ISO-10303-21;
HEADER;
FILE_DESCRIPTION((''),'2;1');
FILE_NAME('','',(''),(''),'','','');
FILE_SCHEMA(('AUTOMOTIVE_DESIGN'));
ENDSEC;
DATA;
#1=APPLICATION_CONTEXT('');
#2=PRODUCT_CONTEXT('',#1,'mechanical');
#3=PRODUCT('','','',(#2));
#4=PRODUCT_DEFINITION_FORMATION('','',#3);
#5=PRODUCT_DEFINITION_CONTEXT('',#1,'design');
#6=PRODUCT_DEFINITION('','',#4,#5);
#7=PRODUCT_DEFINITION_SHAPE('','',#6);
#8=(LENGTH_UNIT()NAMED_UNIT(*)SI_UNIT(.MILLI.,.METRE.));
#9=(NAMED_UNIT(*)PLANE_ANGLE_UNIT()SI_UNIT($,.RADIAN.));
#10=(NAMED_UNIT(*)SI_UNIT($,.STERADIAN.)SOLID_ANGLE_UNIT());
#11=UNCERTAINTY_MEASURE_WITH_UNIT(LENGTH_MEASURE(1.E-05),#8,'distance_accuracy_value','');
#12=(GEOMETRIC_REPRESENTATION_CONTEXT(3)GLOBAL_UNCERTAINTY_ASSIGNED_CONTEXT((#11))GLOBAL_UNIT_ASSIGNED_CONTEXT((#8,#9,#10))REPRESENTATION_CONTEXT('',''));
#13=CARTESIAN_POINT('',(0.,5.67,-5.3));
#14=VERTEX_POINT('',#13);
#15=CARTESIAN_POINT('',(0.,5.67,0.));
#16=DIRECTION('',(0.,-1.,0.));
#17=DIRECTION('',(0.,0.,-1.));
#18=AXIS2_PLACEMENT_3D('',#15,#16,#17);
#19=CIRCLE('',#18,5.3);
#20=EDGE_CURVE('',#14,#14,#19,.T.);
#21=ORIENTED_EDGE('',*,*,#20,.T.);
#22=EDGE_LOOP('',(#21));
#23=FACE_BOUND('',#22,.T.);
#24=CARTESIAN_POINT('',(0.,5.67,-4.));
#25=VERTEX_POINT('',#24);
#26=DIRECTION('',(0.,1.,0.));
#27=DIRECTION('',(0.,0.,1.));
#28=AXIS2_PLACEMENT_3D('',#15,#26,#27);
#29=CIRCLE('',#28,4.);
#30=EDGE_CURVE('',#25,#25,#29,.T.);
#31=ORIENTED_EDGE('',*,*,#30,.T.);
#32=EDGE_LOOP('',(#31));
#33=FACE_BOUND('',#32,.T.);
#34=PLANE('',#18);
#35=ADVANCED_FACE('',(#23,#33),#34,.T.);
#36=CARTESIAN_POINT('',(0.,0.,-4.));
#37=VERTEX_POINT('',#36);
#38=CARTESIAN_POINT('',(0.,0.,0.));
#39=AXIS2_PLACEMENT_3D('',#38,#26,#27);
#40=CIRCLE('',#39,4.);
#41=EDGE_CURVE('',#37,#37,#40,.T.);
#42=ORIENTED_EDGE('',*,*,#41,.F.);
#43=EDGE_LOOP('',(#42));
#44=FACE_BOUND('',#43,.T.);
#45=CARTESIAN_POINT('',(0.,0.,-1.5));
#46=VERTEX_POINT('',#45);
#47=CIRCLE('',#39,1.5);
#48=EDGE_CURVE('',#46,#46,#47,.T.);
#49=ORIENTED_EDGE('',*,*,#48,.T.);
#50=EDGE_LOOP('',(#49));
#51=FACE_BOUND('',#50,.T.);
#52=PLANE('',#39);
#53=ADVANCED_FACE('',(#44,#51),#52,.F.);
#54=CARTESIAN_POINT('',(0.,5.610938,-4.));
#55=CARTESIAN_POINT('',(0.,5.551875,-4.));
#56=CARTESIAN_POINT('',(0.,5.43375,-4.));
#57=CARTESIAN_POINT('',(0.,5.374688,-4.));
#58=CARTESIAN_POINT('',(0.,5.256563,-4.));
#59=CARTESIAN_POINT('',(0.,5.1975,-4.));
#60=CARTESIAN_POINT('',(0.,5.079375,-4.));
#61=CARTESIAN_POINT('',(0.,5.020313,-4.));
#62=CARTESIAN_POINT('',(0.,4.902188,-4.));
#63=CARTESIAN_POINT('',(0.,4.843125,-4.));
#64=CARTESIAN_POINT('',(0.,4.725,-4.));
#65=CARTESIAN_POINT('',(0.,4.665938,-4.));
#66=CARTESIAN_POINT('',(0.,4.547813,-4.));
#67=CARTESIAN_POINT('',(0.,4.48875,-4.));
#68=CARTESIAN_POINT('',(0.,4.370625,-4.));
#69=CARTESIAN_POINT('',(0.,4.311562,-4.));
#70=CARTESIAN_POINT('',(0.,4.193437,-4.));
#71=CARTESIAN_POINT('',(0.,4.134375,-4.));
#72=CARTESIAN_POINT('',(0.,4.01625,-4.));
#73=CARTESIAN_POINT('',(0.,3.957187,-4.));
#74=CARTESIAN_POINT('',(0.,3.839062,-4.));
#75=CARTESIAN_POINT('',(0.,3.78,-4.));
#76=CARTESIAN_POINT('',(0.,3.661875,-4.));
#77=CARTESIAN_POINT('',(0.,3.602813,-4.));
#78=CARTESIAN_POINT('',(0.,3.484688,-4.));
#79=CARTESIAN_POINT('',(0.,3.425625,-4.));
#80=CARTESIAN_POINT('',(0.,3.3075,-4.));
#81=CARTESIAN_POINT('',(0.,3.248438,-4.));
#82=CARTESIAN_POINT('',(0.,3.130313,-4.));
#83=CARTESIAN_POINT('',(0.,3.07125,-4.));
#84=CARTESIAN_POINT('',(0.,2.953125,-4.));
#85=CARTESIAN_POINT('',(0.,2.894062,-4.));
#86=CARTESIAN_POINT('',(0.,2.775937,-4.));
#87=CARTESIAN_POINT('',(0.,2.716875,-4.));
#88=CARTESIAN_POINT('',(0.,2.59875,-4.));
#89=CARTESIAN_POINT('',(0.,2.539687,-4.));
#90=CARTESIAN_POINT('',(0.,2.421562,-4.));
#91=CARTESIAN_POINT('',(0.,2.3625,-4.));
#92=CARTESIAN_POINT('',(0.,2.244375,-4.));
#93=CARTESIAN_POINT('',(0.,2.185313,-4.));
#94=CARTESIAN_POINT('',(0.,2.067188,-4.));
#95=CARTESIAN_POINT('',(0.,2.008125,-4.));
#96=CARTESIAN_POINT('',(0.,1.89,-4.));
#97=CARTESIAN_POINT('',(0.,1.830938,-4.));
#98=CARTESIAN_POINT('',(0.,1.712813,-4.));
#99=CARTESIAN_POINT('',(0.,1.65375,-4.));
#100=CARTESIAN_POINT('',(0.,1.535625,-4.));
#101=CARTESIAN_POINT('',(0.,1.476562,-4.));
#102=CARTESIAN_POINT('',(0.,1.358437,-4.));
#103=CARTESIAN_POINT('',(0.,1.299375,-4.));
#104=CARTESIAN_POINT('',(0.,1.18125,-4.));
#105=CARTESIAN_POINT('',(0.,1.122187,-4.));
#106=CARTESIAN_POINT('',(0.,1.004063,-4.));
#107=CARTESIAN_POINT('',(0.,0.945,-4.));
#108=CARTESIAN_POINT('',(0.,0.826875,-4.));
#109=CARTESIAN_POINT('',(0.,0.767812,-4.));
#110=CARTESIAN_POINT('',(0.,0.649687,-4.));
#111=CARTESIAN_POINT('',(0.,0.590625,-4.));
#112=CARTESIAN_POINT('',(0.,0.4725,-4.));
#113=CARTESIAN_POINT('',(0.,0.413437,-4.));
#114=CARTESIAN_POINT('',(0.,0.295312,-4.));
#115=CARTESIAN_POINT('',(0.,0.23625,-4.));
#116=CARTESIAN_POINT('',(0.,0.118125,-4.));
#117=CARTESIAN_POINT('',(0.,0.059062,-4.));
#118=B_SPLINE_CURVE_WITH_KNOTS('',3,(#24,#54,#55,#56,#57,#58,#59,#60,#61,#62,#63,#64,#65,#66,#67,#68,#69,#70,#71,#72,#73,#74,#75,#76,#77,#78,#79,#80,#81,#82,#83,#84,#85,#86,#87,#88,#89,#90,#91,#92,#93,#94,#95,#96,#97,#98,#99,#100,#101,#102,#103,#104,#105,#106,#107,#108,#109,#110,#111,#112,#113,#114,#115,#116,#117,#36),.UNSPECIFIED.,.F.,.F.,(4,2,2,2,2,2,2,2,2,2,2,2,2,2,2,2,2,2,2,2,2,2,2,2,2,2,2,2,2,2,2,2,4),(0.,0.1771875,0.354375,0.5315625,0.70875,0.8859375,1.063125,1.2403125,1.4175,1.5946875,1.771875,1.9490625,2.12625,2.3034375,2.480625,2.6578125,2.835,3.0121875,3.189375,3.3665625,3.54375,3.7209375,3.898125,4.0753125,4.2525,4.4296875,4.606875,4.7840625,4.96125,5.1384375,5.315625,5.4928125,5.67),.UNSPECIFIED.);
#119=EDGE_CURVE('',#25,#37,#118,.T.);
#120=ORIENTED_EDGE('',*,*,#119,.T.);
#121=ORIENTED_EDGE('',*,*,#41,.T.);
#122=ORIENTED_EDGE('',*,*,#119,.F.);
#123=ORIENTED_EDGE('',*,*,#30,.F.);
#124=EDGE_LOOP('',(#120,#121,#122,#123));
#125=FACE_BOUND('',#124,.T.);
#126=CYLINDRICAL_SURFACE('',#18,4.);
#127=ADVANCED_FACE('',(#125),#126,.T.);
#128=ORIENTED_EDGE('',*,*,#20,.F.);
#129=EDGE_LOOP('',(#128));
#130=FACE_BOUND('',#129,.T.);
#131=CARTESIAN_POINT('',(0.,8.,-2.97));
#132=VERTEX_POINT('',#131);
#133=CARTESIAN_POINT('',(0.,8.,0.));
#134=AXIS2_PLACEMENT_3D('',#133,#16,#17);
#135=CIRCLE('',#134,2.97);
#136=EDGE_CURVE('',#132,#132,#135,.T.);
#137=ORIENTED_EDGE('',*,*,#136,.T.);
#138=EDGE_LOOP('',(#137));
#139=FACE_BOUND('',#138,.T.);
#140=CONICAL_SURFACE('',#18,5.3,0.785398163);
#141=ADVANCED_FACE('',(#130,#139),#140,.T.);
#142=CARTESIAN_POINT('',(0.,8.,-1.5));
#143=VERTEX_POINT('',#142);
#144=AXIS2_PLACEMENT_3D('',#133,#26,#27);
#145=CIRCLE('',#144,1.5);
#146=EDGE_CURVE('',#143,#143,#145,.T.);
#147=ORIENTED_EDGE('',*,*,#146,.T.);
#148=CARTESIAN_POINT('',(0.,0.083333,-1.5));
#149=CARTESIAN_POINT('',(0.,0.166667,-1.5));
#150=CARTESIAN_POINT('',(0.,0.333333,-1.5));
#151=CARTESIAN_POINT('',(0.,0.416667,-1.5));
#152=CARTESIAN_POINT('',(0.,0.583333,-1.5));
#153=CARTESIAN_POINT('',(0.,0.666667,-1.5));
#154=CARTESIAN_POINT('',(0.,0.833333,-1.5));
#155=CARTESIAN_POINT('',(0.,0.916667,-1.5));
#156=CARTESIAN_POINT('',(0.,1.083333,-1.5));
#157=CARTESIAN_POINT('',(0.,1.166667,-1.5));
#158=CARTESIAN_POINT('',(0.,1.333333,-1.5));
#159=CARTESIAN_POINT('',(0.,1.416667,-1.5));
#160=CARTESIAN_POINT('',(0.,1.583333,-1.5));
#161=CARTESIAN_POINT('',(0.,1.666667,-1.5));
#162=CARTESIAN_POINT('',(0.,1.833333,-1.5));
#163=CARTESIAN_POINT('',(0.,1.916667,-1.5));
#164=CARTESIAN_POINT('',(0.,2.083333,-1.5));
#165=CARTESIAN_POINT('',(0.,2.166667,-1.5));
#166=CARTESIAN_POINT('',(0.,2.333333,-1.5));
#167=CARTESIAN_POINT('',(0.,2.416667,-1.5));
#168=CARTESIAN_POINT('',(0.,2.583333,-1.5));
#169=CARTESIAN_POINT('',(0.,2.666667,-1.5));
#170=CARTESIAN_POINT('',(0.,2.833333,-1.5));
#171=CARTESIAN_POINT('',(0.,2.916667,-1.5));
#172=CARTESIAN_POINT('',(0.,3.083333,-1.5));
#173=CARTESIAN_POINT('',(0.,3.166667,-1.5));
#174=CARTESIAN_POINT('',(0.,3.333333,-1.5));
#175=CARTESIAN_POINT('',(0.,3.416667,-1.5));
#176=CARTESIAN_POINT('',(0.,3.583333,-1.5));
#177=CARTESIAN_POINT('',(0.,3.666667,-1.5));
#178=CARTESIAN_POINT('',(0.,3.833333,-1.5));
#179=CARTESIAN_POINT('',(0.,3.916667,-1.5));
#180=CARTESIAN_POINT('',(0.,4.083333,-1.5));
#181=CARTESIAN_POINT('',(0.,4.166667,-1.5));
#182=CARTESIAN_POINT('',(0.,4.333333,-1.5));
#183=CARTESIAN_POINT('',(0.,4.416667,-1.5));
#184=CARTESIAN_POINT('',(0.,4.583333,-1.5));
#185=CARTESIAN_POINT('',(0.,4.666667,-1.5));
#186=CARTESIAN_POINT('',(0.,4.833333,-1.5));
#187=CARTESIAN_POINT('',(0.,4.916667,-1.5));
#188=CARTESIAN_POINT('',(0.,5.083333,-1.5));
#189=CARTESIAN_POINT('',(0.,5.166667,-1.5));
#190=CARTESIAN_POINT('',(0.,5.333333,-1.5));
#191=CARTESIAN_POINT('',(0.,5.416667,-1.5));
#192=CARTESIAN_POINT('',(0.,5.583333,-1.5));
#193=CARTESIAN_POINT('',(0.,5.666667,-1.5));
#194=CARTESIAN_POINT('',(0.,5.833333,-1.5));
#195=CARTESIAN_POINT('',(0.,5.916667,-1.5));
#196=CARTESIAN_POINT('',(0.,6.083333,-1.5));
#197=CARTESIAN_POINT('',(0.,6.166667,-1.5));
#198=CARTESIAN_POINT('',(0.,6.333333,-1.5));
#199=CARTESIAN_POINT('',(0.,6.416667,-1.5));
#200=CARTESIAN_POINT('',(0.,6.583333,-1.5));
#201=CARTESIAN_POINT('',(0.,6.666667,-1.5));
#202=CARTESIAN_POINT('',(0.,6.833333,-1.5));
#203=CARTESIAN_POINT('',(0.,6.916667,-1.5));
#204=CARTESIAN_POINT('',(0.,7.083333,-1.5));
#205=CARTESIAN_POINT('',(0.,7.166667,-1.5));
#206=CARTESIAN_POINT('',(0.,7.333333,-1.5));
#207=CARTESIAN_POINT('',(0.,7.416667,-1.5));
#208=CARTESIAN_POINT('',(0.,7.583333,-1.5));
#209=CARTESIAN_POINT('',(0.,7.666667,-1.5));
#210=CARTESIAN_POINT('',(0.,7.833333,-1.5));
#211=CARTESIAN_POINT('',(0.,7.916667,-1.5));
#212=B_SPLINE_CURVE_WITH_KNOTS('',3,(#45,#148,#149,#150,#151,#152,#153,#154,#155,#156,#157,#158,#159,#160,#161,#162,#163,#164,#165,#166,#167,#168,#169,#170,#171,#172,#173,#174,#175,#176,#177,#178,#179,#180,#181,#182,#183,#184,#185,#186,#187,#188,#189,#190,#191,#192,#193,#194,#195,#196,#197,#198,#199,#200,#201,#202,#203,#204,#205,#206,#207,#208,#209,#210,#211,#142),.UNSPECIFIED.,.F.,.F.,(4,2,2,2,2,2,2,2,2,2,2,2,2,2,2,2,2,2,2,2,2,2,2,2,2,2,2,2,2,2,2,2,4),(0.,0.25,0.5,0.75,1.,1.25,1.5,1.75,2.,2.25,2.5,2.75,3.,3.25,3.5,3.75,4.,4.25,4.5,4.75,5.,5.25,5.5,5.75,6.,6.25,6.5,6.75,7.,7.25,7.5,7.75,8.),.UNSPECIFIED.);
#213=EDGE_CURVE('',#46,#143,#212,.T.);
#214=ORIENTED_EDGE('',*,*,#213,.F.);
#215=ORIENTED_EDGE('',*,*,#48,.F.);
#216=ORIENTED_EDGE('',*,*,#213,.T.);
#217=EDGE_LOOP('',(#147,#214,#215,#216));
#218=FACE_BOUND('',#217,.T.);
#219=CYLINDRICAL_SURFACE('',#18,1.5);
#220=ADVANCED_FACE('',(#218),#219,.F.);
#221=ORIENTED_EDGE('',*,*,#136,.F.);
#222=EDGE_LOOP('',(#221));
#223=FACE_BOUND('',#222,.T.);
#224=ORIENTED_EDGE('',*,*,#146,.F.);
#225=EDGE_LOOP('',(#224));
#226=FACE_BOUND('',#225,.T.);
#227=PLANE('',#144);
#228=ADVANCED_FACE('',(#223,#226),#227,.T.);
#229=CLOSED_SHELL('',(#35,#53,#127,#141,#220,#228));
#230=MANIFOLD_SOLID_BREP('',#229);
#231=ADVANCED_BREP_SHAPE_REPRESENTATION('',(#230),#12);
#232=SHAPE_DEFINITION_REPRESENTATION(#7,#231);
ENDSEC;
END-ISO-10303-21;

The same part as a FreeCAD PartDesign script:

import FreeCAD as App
import Part
import Sketcher
Q = App.Units.Quantity


def add_polygon(sketch, points):
    """Adds a closed chain of lines whose ends are joined by coincident constraints."""
    first, n = sketch.GeometryCount, len(points)
    for a, b in zip(points, points[1:] + points[:1]):
        sketch.addGeometry(Part.LineSegment(App.Vector(*a, 0), App.Vector(*b, 0)), False)
    for i in range(n):
        sketch.addConstraint(Sketcher.Constraint("Coincident", first + i, 2, first + (i + 1) % n, 1))

doc = App.newDocument("Part")
params = doc.addObject("Spreadsheet::Sheet", "Params")
for row, (alias, value) in enumerate([
    ("sketch1_diameter", "8 mm"),
    ("sketch1_diameter2", "3 mm"),
    ("pad1_length", "5.67 mm"),
    ("sketch2_width", "5.3 mm"),
    ("sketch2_width2", "2.97 mm"),
    ("revolution_angle", "360 deg"),
    ("sketch3_diameter", "3 mm"),
], start=1):
    params.set(f"A{row}", alias)
    params.set(f"B{row}", "=" + value)
    params.setAlias(f"B{row}", alias)

body = doc.addObject("PartDesign::Body", "Body")

# Sketch on XZ plane
sketch1 = doc.addObject("Sketcher::SketchObject", "Sketch")
body.addObject(sketch1)
sketch1.AttachmentSupport = (doc.XZ_Plane, [""])
sketch1.MapMode = "FlatFace"
sketch1.addGeometry(Part.Circle(App.Vector(0, 0, 0), App.Vector(0, 0, 1), 4), False)
sketch1.addGeometry(Part.Circle(App.Vector(0, 0, 0), App.Vector(0, 0, 1), 1.5), False)
sketch1.addConstraint(Sketcher.Constraint("Coincident", 0, 3, -1, 1))
sketch1.addConstraint(Sketcher.Constraint("Coincident", 1, 3, -1, 1))
sketch1.addConstraint(Sketcher.Constraint("Diameter", 0, 8.0))
sketch1.addConstraint(Sketcher.Constraint("Diameter", 1, 3.0))
sketch1.setExpression("Constraints[2]", "Params.sketch1_diameter")
sketch1.setExpression("Constraints[3]", "Params.sketch1_diameter2")
pad1 = doc.addObject("PartDesign::Pad", "Pad")
body.addObject(pad1)
pad1.Profile = sketch1
pad1.setExpression("Length", "Params.pad1_length")
pad1.Reversed = True

# Sketch on XY plane
sketch2 = doc.addObject("Sketcher::SketchObject", "Sketch001")
body.addObject(sketch2)
sketch2.AttachmentSupport = (doc.XY_Plane, [""])
sketch2.MapMode = "FlatFace"
add_polygon(sketch2, [(0, 5.7), (5.3, 5.7), (3, 8), (0, 8)])  # lines 0-3
sketch2.addConstraint(Sketcher.Constraint("Horizontal", 0))
sketch2.addConstraint(Sketcher.Constraint("Horizontal", 2))
sketch2.addConstraint(Sketcher.Constraint("Vertical", 3))
sketch2.addConstraint(Sketcher.Constraint("PointOnObject", 2, 2, -2))
sketch2.addConstraint(Sketcher.Constraint("Angle", 1, Q("135 deg")))
sketch2.addConstraint(Sketcher.Constraint("DistanceX", 0, 1, 0, 2, 5.3))
sketch2.addConstraint(Sketcher.Constraint("DistanceY", -1, 1, 1, 2, 8.0))
sketch2.addConstraint(Sketcher.Constraint("DistanceX", 2, 2, 2, 1, 2.97))
sketch2.setExpression("Constraints[9]", "Params.sketch2_width")
sketch2.setExpression("Constraints[11]", "Params.sketch2_width2")
revolution = doc.addObject("PartDesign::Revolution", "Revolution")
body.addObject(revolution)
revolution.Profile = sketch2
revolution.ReferenceAxis = (sketch2, ["V_Axis"])
revolution.setExpression("Angle", "Params.revolution_angle")

# Sketch on XZ plane
sketch3 = doc.addObject("Sketcher::SketchObject", "Sketch002")
body.addObject(sketch3)
sketch3.AttachmentSupport = (doc.XZ_Plane, [""])
sketch3.MapMode = "FlatFace"
sketch3.AttachmentOffset = App.Placement(App.Vector(0, 0, -8), App.Rotation())
sketch3.addGeometry(Part.Circle(App.Vector(0, 0, 0), App.Vector(0, 0, 1), 1.5), False)
sketch3.addConstraint(Sketcher.Constraint("Coincident", 0, 3, -1, 1))
sketch3.addConstraint(Sketcher.Constraint("Diameter", 0, 3.0))
sketch3.setExpression("Constraints[1]", "Params.sketch3_diameter")
pocket1 = doc.addObject("PartDesign::Pocket", "Pocket")
body.addObject(pocket1)
pocket1.Profile = sketch3
pocket1.Type = "ThroughAll"
pocket1.Reversed = True

doc.recompute()
